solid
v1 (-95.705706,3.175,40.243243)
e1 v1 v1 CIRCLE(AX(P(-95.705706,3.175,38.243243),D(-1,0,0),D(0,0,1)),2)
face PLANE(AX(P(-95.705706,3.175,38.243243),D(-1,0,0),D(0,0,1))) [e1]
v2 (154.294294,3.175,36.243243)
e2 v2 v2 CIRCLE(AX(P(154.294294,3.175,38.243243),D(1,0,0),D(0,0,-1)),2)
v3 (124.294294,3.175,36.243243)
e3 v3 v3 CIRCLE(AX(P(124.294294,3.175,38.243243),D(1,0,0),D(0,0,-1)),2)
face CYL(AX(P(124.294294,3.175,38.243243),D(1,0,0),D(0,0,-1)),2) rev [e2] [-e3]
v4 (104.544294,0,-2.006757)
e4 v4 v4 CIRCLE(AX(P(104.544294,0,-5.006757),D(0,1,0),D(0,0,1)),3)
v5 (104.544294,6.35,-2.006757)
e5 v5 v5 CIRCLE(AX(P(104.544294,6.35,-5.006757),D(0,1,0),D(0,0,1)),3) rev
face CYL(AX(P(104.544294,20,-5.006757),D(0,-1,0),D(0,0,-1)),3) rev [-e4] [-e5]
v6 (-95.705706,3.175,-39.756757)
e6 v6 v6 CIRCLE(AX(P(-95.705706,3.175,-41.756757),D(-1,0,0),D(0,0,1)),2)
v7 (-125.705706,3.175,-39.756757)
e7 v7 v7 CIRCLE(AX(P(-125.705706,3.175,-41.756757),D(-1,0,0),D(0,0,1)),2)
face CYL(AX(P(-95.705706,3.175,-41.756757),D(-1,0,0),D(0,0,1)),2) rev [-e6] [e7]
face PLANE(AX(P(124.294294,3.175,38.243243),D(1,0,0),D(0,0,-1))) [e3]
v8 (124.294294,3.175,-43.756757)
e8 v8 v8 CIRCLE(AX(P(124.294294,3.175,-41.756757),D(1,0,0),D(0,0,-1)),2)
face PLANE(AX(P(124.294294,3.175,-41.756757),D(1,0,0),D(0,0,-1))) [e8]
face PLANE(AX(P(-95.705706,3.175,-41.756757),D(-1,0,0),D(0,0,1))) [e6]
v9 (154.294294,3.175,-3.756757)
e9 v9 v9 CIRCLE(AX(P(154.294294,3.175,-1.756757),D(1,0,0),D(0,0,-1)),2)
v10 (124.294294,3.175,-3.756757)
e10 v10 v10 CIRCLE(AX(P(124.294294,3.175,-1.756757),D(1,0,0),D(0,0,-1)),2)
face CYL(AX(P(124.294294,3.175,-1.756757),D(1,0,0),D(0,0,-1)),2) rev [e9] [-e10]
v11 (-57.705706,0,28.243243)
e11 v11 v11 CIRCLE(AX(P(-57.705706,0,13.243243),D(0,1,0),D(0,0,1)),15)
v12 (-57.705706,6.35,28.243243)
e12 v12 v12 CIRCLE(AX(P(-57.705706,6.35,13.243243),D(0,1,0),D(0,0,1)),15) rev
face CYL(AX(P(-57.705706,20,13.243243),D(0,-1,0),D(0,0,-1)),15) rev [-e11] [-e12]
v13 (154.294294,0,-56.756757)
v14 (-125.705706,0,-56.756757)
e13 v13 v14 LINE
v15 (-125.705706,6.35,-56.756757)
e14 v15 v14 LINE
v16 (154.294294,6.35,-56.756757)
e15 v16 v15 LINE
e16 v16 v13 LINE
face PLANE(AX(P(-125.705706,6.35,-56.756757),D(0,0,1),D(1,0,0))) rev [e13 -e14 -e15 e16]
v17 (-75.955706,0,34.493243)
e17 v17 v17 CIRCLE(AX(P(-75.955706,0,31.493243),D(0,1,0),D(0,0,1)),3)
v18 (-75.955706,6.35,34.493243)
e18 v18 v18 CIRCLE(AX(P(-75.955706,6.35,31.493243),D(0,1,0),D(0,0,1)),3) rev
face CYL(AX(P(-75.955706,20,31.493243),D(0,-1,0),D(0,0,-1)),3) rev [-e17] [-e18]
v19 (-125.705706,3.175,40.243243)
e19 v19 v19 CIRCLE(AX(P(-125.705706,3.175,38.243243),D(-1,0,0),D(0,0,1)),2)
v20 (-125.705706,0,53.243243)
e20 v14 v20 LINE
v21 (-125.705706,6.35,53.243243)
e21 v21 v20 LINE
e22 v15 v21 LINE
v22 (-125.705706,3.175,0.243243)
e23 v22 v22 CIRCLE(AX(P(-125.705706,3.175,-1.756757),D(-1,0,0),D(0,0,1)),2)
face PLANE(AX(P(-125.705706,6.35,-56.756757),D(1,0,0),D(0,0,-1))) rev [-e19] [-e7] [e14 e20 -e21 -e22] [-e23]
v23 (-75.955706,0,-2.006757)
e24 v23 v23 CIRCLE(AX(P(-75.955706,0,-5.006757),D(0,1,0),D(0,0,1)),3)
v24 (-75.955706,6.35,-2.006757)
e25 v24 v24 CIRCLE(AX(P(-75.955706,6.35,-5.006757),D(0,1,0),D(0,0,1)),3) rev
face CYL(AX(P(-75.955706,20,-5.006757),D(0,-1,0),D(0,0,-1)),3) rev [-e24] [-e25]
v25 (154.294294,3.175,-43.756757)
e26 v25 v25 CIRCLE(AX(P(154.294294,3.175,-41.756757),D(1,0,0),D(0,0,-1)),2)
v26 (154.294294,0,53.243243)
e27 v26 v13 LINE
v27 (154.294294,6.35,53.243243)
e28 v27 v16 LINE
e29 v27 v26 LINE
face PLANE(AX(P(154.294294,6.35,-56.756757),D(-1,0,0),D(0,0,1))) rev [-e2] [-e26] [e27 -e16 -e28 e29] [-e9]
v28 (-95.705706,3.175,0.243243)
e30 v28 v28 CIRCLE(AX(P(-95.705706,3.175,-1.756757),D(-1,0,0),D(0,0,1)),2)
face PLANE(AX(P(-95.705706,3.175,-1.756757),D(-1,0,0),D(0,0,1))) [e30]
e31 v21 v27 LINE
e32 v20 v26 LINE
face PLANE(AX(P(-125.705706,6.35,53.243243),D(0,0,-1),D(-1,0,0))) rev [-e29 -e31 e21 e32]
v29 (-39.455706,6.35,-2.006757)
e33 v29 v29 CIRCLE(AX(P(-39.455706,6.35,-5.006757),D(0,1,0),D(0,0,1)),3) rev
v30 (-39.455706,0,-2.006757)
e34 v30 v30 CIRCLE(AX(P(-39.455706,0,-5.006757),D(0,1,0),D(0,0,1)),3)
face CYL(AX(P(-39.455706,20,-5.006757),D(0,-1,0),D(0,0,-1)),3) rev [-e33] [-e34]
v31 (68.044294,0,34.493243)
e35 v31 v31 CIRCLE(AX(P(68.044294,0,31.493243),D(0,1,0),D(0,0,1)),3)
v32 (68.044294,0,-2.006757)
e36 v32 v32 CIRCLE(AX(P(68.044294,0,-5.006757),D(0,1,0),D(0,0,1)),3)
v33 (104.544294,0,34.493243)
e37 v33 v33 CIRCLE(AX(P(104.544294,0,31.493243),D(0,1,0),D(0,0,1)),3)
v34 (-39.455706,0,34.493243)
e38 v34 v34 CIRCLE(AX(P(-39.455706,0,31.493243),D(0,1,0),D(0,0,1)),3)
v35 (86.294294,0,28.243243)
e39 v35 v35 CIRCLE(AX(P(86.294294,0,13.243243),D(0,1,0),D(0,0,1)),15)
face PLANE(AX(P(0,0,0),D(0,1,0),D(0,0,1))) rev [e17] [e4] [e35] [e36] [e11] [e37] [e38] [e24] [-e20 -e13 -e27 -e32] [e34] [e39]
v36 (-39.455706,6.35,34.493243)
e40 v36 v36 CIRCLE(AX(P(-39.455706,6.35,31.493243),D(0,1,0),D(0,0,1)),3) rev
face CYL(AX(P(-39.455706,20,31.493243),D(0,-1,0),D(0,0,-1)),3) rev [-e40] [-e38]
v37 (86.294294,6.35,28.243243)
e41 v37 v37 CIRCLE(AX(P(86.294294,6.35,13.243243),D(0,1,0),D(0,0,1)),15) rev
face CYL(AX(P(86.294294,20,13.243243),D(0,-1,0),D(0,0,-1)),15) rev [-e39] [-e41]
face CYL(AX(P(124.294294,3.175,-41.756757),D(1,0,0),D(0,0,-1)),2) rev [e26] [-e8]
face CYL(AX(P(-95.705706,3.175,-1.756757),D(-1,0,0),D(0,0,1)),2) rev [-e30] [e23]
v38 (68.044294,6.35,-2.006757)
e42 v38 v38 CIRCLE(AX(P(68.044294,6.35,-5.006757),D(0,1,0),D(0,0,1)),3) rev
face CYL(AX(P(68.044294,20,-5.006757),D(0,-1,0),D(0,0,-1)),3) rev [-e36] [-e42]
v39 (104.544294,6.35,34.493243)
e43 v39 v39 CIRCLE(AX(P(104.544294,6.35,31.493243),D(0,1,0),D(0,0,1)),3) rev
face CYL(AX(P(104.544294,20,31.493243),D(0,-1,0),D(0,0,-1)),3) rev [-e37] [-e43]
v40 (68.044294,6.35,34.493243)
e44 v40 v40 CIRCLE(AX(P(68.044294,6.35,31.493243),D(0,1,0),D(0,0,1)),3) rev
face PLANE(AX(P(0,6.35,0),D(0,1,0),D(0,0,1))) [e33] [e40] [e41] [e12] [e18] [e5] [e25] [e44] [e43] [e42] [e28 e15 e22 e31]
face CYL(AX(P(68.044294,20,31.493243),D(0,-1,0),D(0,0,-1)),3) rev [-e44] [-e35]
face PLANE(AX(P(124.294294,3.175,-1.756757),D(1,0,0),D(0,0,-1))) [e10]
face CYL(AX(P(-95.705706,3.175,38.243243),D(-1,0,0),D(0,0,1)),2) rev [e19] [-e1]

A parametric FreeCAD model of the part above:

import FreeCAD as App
import Part
import Sketcher
Q = App.Units.Quantity


def add_polygon(sketch, points):
    """Adds a closed chain of lines whose ends are joined by coincident constraints."""
    first, n = sketch.GeometryCount, len(points)
    for a, b in zip(points, points[1:] + points[:1]):
        sketch.addGeometry(Part.LineSegment(App.Vector(*a, 0), App.Vector(*b, 0)), False)
    for i in range(n):
        sketch.addConstraint(Sketcher.Constraint("Coincident", first + i, 2, first + (i + 1) % n, 1))

doc = App.newDocument("Part")
body = doc.addObject("PartDesign::Body", "Body")

# Sketch on XZ plane
sketch1 = doc.addObject("Sketcher::SketchObject", "Sketch")
body.addObject(sketch1)
sketch1.AttachmentSupport = (doc.XZ_Plane, [""])
sketch1.MapMode = "FlatFace"
add_polygon(sketch1, [(-126, -57), (-126, 53), (154, 53), (154, -57)])  # lines 0-3
sketch1.addConstraint(Sketcher.Constraint("Vertical", 0))
sketch1.addConstraint(Sketcher.Constraint("Horizontal", 1))
sketch1.addConstraint(Sketcher.Constraint("Vertical", 2))
sketch1.addConstraint(Sketcher.Constraint("Horizontal", 3))
sketch1.addConstraint(Sketcher.Constraint("DistanceX", 1, 1, 1, 2, Q("280 mm")))
sketch1.addConstraint(Sketcher.Constraint("DistanceY", 0, 1, 0, 2, Q("110 mm")))
sketch1.addConstraint(Sketcher.Constraint("DistanceX", 0, 2, -1, 1, Q("125.705706 mm")))
sketch1.addConstraint(Sketcher.Constraint("DistanceY", -1, 1, 0, 2, Q("53.243243 mm")))
pad1 = doc.addObject("PartDesign::Pad", "Pad")
body.addObject(pad1)
pad1.Profile = sketch1
pad1.Length = 6.35
pad1.Reversed = True

# Sketch on XZ plane
sketch2 = doc.addObject("Sketcher::SketchObject", "Sketch001")
body.addObject(sketch2)
sketch2.AttachmentSupport = (doc.XZ_Plane, [""])
sketch2.MapMode = "FlatFace"
sketch2.addGeometry(Part.Circle(App.Vector(-39.5, -5, 0), App.Vector(0, 0, 1), 3), False)
sketch2.addGeometry(Part.Circle(App.Vector(-76, -5, 0), App.Vector(0, 0, 1), 3), False)
sketch2.addGeometry(Part.Circle(App.Vector(86.3, 13.2, 0), App.Vector(0, 0, 1), 15), False)
sketch2.addGeometry(Part.Circle(App.Vector(-57.7, 13.2, 0), App.Vector(0, 0, 1), 15), False)
sketch2.addGeometry(Part.Circle(App.Vector(-39.5, 31.5, 0), App.Vector(0, 0, 1), 3), False)
sketch2.addGeometry(Part.Circle(App.Vector(-76, 31.5, 0), App.Vector(0, 0, 1), 3), False)
sketch2.addGeometry(Part.Circle(App.Vector(104.5, -5, 0), App.Vector(0, 0, 1), 3), False)
sketch2.addGeometry(Part.Circle(App.Vector(68, -5, 0), App.Vector(0, 0, 1), 3), False)
sketch2.addGeometry(Part.Circle(App.Vector(104.5, 31.5, 0), App.Vector(0, 0, 1), 3), False)
sketch2.addGeometry(Part.Circle(App.Vector(68, 31.5, 0), App.Vector(0, 0, 1), 3), False)
sketch2.addConstraint(Sketcher.Constraint("Equal", 0, 1))
sketch2.addConstraint(Sketcher.Constraint("Equal", 2, 3))
sketch2.addConstraint(Sketcher.Constraint("Equal", 1, 4))
sketch2.addConstraint(Sketcher.Constraint("Equal", 4, 5))
sketch2.addConstraint(Sketcher.Constraint("Equal", 5, 6))
sketch2.addConstraint(Sketcher.Constraint("Equal", 6, 7))
sketch2.addConstraint(Sketcher.Constraint("Equal", 7, 8))
sketch2.addConstraint(Sketcher.Constraint("Equal", 8, 9))
sketch2.addConstraint(Sketcher.Constraint("Horizontal", 0, 3, 1, 3))
sketch2.addConstraint(Sketcher.Constraint("Horizontal", 2, 3, 3, 3))
sketch2.addConstraint(Sketcher.Constraint("Horizontal", 4, 3, 5, 3))
sketch2.addConstraint(Sketcher.Constraint("Horizontal", 1, 3, 6, 3))
sketch2.addConstraint(Sketcher.Constraint("Horizontal", 6, 3, 7, 3))
sketch2.addConstraint(Sketcher.Constraint("Horizontal", 5, 3, 8, 3))
sketch2.addConstraint(Sketcher.Constraint("Horizontal", 8, 3, 9, 3))
sketch2.addConstraint(Sketcher.Constraint("Vertical", 0, 3, 4, 3))
sketch2.addConstraint(Sketcher.Constraint("Vertical", 1, 3, 5, 3))
sketch2.addConstraint(Sketcher.Constraint("Vertical", 6, 3, 8, 3))
sketch2.addConstraint(Sketcher.Constraint("Vertical", 7, 3, 9, 3))
sketch2.addConstraint(Sketcher.Constraint("Diameter", 0, Q("6 mm")))
sketch2.addConstraint(Sketcher.Constraint("Diameter", 2, Q("30 mm")))
sketch2.addConstraint(Sketcher.Constraint("DistanceX", 3, 3, 2, 3, Q("144 mm")))
sketch2.addConstraint(Sketcher.Constraint("DistanceX", 0, 3, 6, 3, Q("144 mm")))
sketch2.addConstraint(Sketcher.Constraint("DistanceX", 1, 3, 0, 3, Q("36.5 mm")))
sketch2.addConstraint(Sketcher.Constraint("DistanceY", 0, 3, 4, 3, Q("36.5 mm")))
sketch2.addConstraint(Sketcher.Constraint("DistanceX", 7, 3, 6, 3, Q("36.5 mm")))
sketch2.addConstraint(Sketcher.Constraint("DistanceX", 0, 3, 2, 3, Q("125.75 mm")))
sketch2.addConstraint(Sketcher.Constraint("DistanceY", 0, 3, 2, 3, Q("18.25 mm")))
sketch2.addConstraint(Sketcher.Constraint("DistanceX", 0, 3, -1, 1, Q("39.455706 mm")))
sketch2.addConstraint(Sketcher.Constraint("DistanceY", 0, 3, -1, 1, Q("5.006757 mm")))
pocket1 = doc.addObject("PartDesign::Pocket", "Pocket")
body.addObject(pocket1)
pocket1.Profile = sketch2
pocket1.Length = 20

# Sketch on YZ plane
sketch3 = doc.addObject("Sketcher::SketchObject", "Sketch002")
body.addObject(sketch3)
sketch3.AttachmentSupport = (doc.YZ_Plane, [""])
sketch3.MapMode = "FlatFace"
sketch3.AttachmentOffset = App.Placement(App.Vector(0, 0, -125.705706), App.Rotation())
sketch3.addGeometry(Part.Circle(App.Vector(3.2, 38.2, 0), App.Vector(0, 0, 1), 2), False)
sketch3.addGeometry(Part.Circle(App.Vector(3.2, -41.8, 0), App.Vector(0, 0, 1), 2), False)
sketch3.addGeometry(Part.Circle(App.Vector(3.2, -1.8, 0), App.Vector(0, 0, 1), 2), False)
sketch3.addConstraint(Sketcher.Constraint("Equal", 0, 1))
sketch3.addConstraint(Sketcher.Constraint("Equal", 1, 2))
sketch3.addConstraint(Sketcher.Constraint("Vertical", 0, 3, 1, 3))
sketch3.addConstraint(Sketcher.Constraint("Vertical", 1, 3, 2, 3))
sketch3.addConstraint(Sketcher.Constraint("Diameter", 0, Q("4 mm")))
sketch3.addConstraint(Sketcher.Constraint("DistanceY", 1, 3, 0, 3, Q("80 mm")))
sketch3.addConstraint(Sketcher.Constraint("DistanceY", 2, 3, 0, 3, Q("40 mm")))
sketch3.addConstraint(Sketcher.Constraint("DistanceX", -1, 1, 0, 3, Q("3.175 mm")))
sketch3.addConstraint(Sketcher.Constraint("DistanceY", -1, 1, 0, 3, Q("38.243243 mm")))
pocket2 = doc.addObject("PartDesign::Pocket", "Pocket001")
body.addObject(pocket2)
pocket2.Profile = sketch3
pocket2.Length = 30
pocket2.Reversed = True

# Sketch on YZ plane
sketch4 = doc.addObject("Sketcher::SketchObject", "Sketch003")
body.addObject(sketch4)
sketch4.AttachmentSupport = (doc.YZ_Plane, [""])
sketch4.MapMode = "FlatFace"
sketch4.AttachmentOffset = App.Placement(App.Vector(0, 0, 154.294294), App.Rotation())
sketch4.addGeometry(Part.Circle(App.Vector(3.2, -41.8, 0), App.Vector(0, 0, 1), 2), False)
sketch4.addGeometry(Part.Circle(App.Vector(3.2, 38.2, 0), App.Vector(0, 0, 1), 2), False)
sketch4.addGeometry(Part.Circle(App.Vector(3.2, -1.8, 0), App.Vector(0, 0, 1), 2), False)
sketch4.addConstraint(Sketcher.Constraint("Equal", 0, 1))
sketch4.addConstraint(Sketcher.Constraint("Equal", 1, 2))
sketch4.addConstraint(Sketcher.Constraint("Vertical", 0, 3, 1, 3))
sketch4.addConstraint(Sketcher.Constraint("Vertical", 1, 3, 2, 3))
sketch4.addConstraint(Sketcher.Constraint("Diameter", 0, Q("4 mm")))
sketch4.addConstraint(Sketcher.Constraint("DistanceY", 0, 3, 1, 3, Q("80 mm")))
sketch4.addConstraint(Sketcher.Constraint("DistanceY", 0, 3, 2, 3, Q("40 mm")))
sketch4.addConstraint(Sketcher.Constraint("DistanceX", -1, 1, 0, 3, Q("3.175 mm")))
sketch4.addConstraint(Sketcher.Constraint("DistanceY", 0, 3, -1, 1, Q("41.756757 mm")))
pocket3 = doc.addObject("PartDesign::Pocket", "Pocket002")
body.addObject(pocket3)
pocket3.Profile = sketch4
pocket3.Length = 30

doc.recompute()
